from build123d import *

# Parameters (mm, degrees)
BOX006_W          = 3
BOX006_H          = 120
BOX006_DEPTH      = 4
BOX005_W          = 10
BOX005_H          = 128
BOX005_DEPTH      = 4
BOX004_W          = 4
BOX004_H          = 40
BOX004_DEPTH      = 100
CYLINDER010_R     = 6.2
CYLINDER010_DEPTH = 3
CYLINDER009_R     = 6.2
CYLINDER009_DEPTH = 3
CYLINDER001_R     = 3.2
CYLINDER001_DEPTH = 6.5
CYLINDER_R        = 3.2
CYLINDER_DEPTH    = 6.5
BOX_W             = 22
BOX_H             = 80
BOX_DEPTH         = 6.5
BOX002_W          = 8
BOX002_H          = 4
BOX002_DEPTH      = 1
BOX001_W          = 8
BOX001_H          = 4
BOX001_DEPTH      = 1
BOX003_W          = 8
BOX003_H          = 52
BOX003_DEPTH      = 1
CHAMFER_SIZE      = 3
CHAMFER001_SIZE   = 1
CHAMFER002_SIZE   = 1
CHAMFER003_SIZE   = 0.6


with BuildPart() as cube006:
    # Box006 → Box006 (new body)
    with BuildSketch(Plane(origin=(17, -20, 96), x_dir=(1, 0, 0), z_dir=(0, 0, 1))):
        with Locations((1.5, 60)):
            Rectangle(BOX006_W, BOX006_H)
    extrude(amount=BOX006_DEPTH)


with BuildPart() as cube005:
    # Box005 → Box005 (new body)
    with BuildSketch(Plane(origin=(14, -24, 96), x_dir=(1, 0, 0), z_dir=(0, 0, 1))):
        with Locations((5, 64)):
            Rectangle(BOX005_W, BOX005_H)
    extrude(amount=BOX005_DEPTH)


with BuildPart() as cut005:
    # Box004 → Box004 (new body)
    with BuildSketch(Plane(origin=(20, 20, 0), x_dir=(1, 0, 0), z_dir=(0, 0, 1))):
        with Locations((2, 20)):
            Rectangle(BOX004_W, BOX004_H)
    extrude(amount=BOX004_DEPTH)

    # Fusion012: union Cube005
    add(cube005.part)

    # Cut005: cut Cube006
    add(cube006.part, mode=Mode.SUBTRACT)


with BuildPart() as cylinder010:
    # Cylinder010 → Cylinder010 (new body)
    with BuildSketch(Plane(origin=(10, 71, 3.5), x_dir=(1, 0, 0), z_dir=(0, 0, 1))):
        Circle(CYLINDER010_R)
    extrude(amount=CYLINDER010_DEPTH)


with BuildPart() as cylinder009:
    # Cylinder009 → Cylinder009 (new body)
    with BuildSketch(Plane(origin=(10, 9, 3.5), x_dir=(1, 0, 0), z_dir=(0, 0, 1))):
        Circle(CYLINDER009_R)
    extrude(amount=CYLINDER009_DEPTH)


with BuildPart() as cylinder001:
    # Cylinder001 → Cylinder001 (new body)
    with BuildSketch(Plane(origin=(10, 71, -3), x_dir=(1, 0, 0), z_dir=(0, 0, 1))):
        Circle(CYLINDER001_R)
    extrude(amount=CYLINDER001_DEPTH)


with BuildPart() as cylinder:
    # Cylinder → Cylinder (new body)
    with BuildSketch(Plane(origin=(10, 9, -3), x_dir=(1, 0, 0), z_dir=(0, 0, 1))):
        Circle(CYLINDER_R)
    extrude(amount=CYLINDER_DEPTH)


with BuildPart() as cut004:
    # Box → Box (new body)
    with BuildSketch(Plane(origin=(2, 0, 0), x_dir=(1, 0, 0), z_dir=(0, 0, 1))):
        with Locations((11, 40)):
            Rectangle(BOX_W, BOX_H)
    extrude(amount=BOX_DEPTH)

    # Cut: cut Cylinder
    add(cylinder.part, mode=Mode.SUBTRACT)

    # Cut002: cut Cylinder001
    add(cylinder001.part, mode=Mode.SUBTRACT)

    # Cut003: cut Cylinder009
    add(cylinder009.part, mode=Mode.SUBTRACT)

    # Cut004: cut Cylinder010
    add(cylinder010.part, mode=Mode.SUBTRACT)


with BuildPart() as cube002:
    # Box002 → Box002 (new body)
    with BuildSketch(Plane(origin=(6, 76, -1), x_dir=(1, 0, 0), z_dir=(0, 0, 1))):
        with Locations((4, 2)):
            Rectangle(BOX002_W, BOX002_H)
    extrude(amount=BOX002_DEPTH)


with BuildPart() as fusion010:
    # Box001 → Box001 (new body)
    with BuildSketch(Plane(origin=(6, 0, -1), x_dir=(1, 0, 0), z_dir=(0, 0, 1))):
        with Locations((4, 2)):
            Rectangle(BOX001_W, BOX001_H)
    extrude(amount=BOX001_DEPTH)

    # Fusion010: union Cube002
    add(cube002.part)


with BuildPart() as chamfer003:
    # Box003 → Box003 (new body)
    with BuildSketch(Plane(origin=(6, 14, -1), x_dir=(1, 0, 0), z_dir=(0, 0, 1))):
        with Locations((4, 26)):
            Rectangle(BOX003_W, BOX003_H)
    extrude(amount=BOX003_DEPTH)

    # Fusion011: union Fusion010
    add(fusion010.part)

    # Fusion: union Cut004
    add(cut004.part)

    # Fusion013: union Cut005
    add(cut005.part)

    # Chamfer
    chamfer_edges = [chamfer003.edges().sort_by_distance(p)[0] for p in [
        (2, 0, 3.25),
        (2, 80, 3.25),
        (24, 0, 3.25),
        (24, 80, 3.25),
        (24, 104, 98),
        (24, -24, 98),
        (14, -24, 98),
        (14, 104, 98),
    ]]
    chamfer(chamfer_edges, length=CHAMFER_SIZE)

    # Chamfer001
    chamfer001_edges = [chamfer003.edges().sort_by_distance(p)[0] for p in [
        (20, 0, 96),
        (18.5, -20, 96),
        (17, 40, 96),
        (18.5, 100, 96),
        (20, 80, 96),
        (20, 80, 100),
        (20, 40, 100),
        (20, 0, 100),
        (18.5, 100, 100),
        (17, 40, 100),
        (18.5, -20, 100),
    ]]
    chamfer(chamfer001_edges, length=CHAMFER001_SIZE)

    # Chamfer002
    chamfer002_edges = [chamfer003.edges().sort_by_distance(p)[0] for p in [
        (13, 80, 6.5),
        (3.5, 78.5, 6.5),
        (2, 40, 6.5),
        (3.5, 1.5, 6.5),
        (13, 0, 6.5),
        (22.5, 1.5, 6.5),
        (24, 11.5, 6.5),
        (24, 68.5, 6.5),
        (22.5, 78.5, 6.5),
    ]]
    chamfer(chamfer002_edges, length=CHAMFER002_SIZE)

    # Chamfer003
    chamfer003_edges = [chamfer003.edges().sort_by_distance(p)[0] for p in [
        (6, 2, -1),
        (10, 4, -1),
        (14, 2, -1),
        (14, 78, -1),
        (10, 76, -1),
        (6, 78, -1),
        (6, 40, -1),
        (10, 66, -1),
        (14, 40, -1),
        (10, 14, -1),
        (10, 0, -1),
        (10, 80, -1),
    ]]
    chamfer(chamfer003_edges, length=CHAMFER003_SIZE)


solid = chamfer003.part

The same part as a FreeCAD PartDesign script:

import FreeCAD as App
import Part
import Sketcher


def edges_at(feature, points):
    """Names of the edges that pass closest to the given points."""
    edges = feature.Shape.Edges
    near = lambda p: min(range(len(edges)), key=lambda i: edges[i].distToShape(Part.Vertex(*p))[0])
    return sorted({f"Edge{near(p) + 1}" for p in points})

doc = App.newDocument("Part")
body = doc.addObject("PartDesign::Body", "Body")

# Sketch on XY plane
sketch1 = body.newObject("Sketcher::SketchObject", "Sketch")
sketch1.AttachmentSupport = (doc.getObject("XY_Plane"), [""])
sketch1.MapMode = "FlatFace"
sketch1.AttachmentOffset = App.Placement(App.Vector(0, 0, 96), App.Rotation())
sketch1.addGeometry(Part.LineSegment(App.Vector(17, 100, 0), App.Vector(17, -20, 0)), False)
sketch1.addGeometry(Part.LineSegment(App.Vector(17, -20, 0), App.Vector(20, -20, 0)), False)
sketch1.addGeometry(Part.LineSegment(App.Vector(20, -20, 0), App.Vector(20, 100, 0)), False)
sketch1.addGeometry(Part.LineSegment(App.Vector(20, 100, 0), App.Vector(17, 100, 0)), False)
sketch1.addConstraint(Sketcher.Constraint("Coincident", 0, 2, 1, 1))
sketch1.addConstraint(Sketcher.Constraint("Coincident", 1, 2, 2, 1))
sketch1.addConstraint(Sketcher.Constraint("Coincident", 2, 2, 3, 1))
sketch1.addConstraint(Sketcher.Constraint("Coincident", 3, 2, 0, 1))
sketch1.addConstraint(Sketcher.Constraint("Vertical", 0))
sketch1.addConstraint(Sketcher.Constraint("Horizontal", 1))
sketch1.addConstraint(Sketcher.Constraint("Vertical", 2))
sketch1.addConstraint(Sketcher.Constraint("Horizontal", 3))
sketch1.addConstraint(Sketcher.Constraint("DistanceX", 1, 1, 1, 2, 3.0))
sketch1.addConstraint(Sketcher.Constraint("DistanceY", 0, 2, 0, 1, 120.0))
sketch1.addConstraint(Sketcher.Constraint("DistanceX", -1, 1, 0, 2, 17.0))
sketch1.addConstraint(Sketcher.Constraint("DistanceY", 0, 2, -1, 1, 20.0))
pad1 = body.newObject("PartDesign::Pad", "Pad")
pad1.Profile = sketch1
pad1.Length = 4
body2 = doc.addObject("PartDesign::Body", "Body001")

# Sketch on XY plane
sketch2 = body2.newObject("Sketcher::SketchObject", "Sketch001")
sketch2.AttachmentSupport = (doc.getObject("XY_Plane001"), [""])
sketch2.MapMode = "FlatFace"
sketch2.AttachmentOffset = App.Placement(App.Vector(0, 0, 96), App.Rotation())
sketch2.addGeometry(Part.LineSegment(App.Vector(14, 104, 0), App.Vector(14, -24, 0)), False)
sketch2.addGeometry(Part.LineSegment(App.Vector(14, -24, 0), App.Vector(24, -24, 0)), False)
sketch2.addGeometry(Part.LineSegment(App.Vector(24, -24, 0), App.Vector(24, 104, 0)), False)
sketch2.addGeometry(Part.LineSegment(App.Vector(24, 104, 0), App.Vector(14, 104, 0)), False)
sketch2.addConstraint(Sketcher.Constraint("Coincident", 0, 2, 1, 1))
sketch2.addConstraint(Sketcher.Constraint("Coincident", 1, 2, 2, 1))
sketch2.addConstraint(Sketcher.Constraint("Coincident", 2, 2, 3, 1))
sketch2.addConstraint(Sketcher.Constraint("Coincident", 3, 2, 0, 1))
sketch2.addConstraint(Sketcher.Constraint("Vertical", 0))
sketch2.addConstraint(Sketcher.Constraint("Horizontal", 1))
sketch2.addConstraint(Sketcher.Constraint("Vertical", 2))
sketch2.addConstraint(Sketcher.Constraint("Horizontal", 3))
sketch2.addConstraint(Sketcher.Constraint("DistanceX", 1, 1, 1, 2, 10.0))
sketch2.addConstraint(Sketcher.Constraint("DistanceY", 0, 2, 0, 1, 128.0))
sketch2.addConstraint(Sketcher.Constraint("DistanceX", -1, 1, 0, 2, 14.0))
sketch2.addConstraint(Sketcher.Constraint("DistanceY", 0, 2, -1, 1, 24.0))
pad2 = body2.newObject("PartDesign::Pad", "Pad001")
pad2.Profile = sketch2
pad2.Length = 4
body3 = doc.addObject("PartDesign::Body", "Body002")

# Sketch on XY plane
sketch3 = body3.newObject("Sketcher::SketchObject", "Sketch002")
sketch3.AttachmentSupport = (doc.getObject("XY_Plane002"), [""])
sketch3.MapMode = "FlatFace"
sketch3.addGeometry(Part.LineSegment(App.Vector(20, 60, 0), App.Vector(20, 20, 0)), False)
sketch3.addGeometry(Part.LineSegment(App.Vector(20, 20, 0), App.Vector(24, 20, 0)), False)
sketch3.addGeometry(Part.LineSegment(App.Vector(24, 20, 0), App.Vector(24, 60, 0)), False)
sketch3.addGeometry(Part.LineSegment(App.Vector(24, 60, 0), App.Vector(20, 60, 0)), False)
sketch3.addConstraint(Sketcher.Constraint("Coincident", 0, 2, 1, 1))
sketch3.addConstraint(Sketcher.Constraint("Coincident", 1, 2, 2, 1))
sketch3.addConstraint(Sketcher.Constraint("Coincident", 2, 2, 3, 1))
sketch3.addConstraint(Sketcher.Constraint("Coincident", 3, 2, 0, 1))
sketch3.addConstraint(Sketcher.Constraint("Vertical", 0))
sketch3.addConstraint(Sketcher.Constraint("Horizontal", 1))
sketch3.addConstraint(Sketcher.Constraint("Vertical", 2))
sketch3.addConstraint(Sketcher.Constraint("Horizontal", 3))
sketch3.addConstraint(Sketcher.Constraint("DistanceX", 1, 1, 1, 2, 4.0))
sketch3.addConstraint(Sketcher.Constraint("DistanceY", 0, 2, 0, 1, 40.0))
sketch3.addConstraint(Sketcher.Constraint("DistanceX", -1, 1, 0, 2, 20.0))
sketch3.addConstraint(Sketcher.Constraint("DistanceY", -1, 1, 0, 2, 20.0))
pad3 = body3.newObject("PartDesign::Pad", "Pad002")
pad3.Profile = sketch3
pad3.Length = 100
doc.recompute()

boolean = body3.newObject("PartDesign::Boolean", "Boolean")
boolean.Type = "Fuse"
boolean.addObjects([body2])
doc.recompute()

boolean2 = body3.newObject("PartDesign::Boolean", "Boolean001")
boolean2.Type = "Cut"
boolean2.addObjects([body])
body4 = doc.addObject("PartDesign::Body", "Body003")

# Sketch on XY plane
sketch4 = body4.newObject("Sketcher::SketchObject", "Sketch003")
sketch4.AttachmentSupport = (doc.getObject("XY_Plane003"), [""])
sketch4.MapMode = "FlatFace"
sketch4.AttachmentOffset = App.Placement(App.Vector(0, 0, 3.5), App.Rotation())
sketch4.addGeometry(Part.Circle(App.Vector(10, 71, 0), App.Vector(0, 0, 1), 6.2), False)
sketch4.addConstraint(Sketcher.Constraint("Diameter", 0, 12.4))
sketch4.addConstraint(Sketcher.Constraint("DistanceX", -1, 1, 0, 3, 10.0))
sketch4.addConstraint(Sketcher.Constraint("DistanceY", -1, 1, 0, 3, 71.0))
pad4 = body4.newObject("PartDesign::Pad", "Pad003")
pad4.Profile = sketch4
pad4.Length = 3
body5 = doc.addObject("PartDesign::Body", "Body004")

# Sketch on XY plane
sketch5 = body5.newObject("Sketcher::SketchObject", "Sketch004")
sketch5.AttachmentSupport = (doc.getObject("XY_Plane004"), [""])
sketch5.MapMode = "FlatFace"
sketch5.AttachmentOffset = App.Placement(App.Vector(0, 0, 3.5), App.Rotation())
sketch5.addGeometry(Part.Circle(App.Vector(10, 9, 0), App.Vector(0, 0, 1), 6.2), False)
sketch5.addConstraint(Sketcher.Constraint("Diameter", 0, 12.4))
sketch5.addConstraint(Sketcher.Constraint("DistanceX", -1, 1, 0, 3, 10.0))
sketch5.addConstraint(Sketcher.Constraint("DistanceY", -1, 1, 0, 3, 9.0))
pad5 = body5.newObject("PartDesign::Pad", "Pad004")
pad5.Profile = sketch5
pad5.Length = 3
body6 = doc.addObject("PartDesign::Body", "Body005")

# Sketch on XY plane
sketch6 = body6.newObject("Sketcher::SketchObject", "Sketch005")
sketch6.AttachmentSupport = (doc.getObject("XY_Plane005"), [""])
sketch6.MapMode = "FlatFace"
sketch6.AttachmentOffset = App.Placement(App.Vector(0, 0, -3), App.Rotation())
sketch6.addGeometry(Part.Circle(App.Vector(10, 71, 0), App.Vector(0, 0, 1), 3.2), False)
sketch6.addConstraint(Sketcher.Constraint("Diameter", 0, 6.4))
sketch6.addConstraint(Sketcher.Constraint("DistanceX", -1, 1, 0, 3, 10.0))
sketch6.addConstraint(Sketcher.Constraint("DistanceY", -1, 1, 0, 3, 71.0))
pad6 = body6.newObject("PartDesign::Pad", "Pad005")
pad6.Profile = sketch6
pad6.Length = 6.5
body7 = doc.addObject("PartDesign::Body", "Body006")

# Sketch on XY plane
sketch7 = body7.newObject("Sketcher::SketchObject", "Sketch006")
sketch7.AttachmentSupport = (doc.getObject("XY_Plane006"), [""])
sketch7.MapMode = "FlatFace"
sketch7.AttachmentOffset = App.Placement(App.Vector(0, 0, -3), App.Rotation())
sketch7.addGeometry(Part.Circle(App.Vector(10, 9, 0), App.Vector(0, 0, 1), 3.2), False)
sketch7.addConstraint(Sketcher.Constraint("Diameter", 0, 6.4))
sketch7.addConstraint(Sketcher.Constraint("DistanceX", -1, 1, 0, 3, 10.0))
sketch7.addConstraint(Sketcher.Constraint("DistanceY", -1, 1, 0, 3, 9.0))
pad7 = body7.newObject("PartDesign::Pad", "Pad006")
pad7.Profile = sketch7
pad7.Length = 6.5
body8 = doc.addObject("PartDesign::Body", "Body007")

# Sketch on XY plane
sketch8 = body8.newObject("Sketcher::SketchObject", "Sketch007")
sketch8.AttachmentSupport = (doc.getObject("XY_Plane007"), [""])
sketch8.MapMode = "FlatFace"
sketch8.addGeometry(Part.LineSegment(App.Vector(2, 80, 0), App.Vector(2, 0, 0)), False)
sketch8.addGeometry(Part.LineSegment(App.Vector(2, 0, 0), App.Vector(24, 0, 0)), False)
sketch8.addGeometry(Part.LineSegment(App.Vector(24, 0, 0), App.Vector(24, 80, 0)), False)
sketch8.addGeometry(Part.LineSegment(App.Vector(24, 80, 0), App.Vector(2, 80, 0)), False)
sketch8.addConstraint(Sketcher.Constraint("Coincident", 0, 2, 1, 1))
sketch8.addConstraint(Sketcher.Constraint("Coincident", 1, 2, 2, 1))
sketch8.addConstraint(Sketcher.Constraint("Coincident", 2, 2, 3, 1))
sketch8.addConstraint(Sketcher.Constraint("Coincident", 3, 2, 0, 1))
sketch8.addConstraint(Sketcher.Constraint("Vertical", 0))
sketch8.addConstraint(Sketcher.Constraint("Horizontal", 1))
sketch8.addConstraint(Sketcher.Constraint("Vertical", 2))
sketch8.addConstraint(Sketcher.Constraint("Horizontal", 3))
sketch8.addConstraint(Sketcher.Constraint("PointOnObject", 0, 2, -1))
sketch8.addConstraint(Sketcher.Constraint("DistanceX", 1, 1, 1, 2, 22.0))
sketch8.addConstraint(Sketcher.Constraint("DistanceY", 0, 2, 0, 1, 80.0))
sketch8.addConstraint(Sketcher.Constraint("DistanceX", -1, 1, 0, 2, 2.0))
pad8 = body8.newObject("PartDesign::Pad", "Pad007")
pad8.Profile = sketch8
pad8.Length = 6.5
doc.recompute()

boolean3 = body8.newObject("PartDesign::Boolean", "Boolean002")
boolean3.Type = "Cut"
boolean3.addObjects([body7])
doc.recompute()

boolean4 = body8.newObject("PartDesign::Boolean", "Boolean003")
boolean4.Type = "Cut"
boolean4.addObjects([body6])
doc.recompute()

boolean5 = body8.newObject("PartDesign::Boolean", "Boolean004")
boolean5.Type = "Cut"
boolean5.addObjects([body5])
doc.recompute()

boolean6 = body8.newObject("PartDesign::Boolean", "Boolean005")
boolean6.Type = "Cut"
boolean6.addObjects([body4])
body9 = doc.addObject("PartDesign::Body", "Body008")

# Sketch on XY plane
sketch9 = body9.newObject("Sketcher::SketchObject", "Sketch008")
sketch9.AttachmentSupport = (doc.getObject("XY_Plane008"), [""])
sketch9.MapMode = "FlatFace"
sketch9.AttachmentOffset = App.Placement(App.Vector(0, 0, -1), App.Rotation())
sketch9.addGeometry(Part.LineSegment(App.Vector(6, 80, 0), App.Vector(6, 76, 0)), False)
sketch9.addGeometry(Part.LineSegment(App.Vector(6, 76, 0), App.Vector(14, 76, 0)), False)
sketch9.addGeometry(Part.LineSegment(App.Vector(14, 76, 0), App.Vector(14, 80, 0)), False)
sketch9.addGeometry(Part.LineSegment(App.Vector(14, 80, 0), App.Vector(6, 80, 0)), False)
sketch9.addConstraint(Sketcher.Constraint("Coincident", 0, 2, 1, 1))
sketch9.addConstraint(Sketcher.Constraint("Coincident", 1, 2, 2, 1))
sketch9.addConstraint(Sketcher.Constraint("Coincident", 2, 2, 3, 1))
sketch9.addConstraint(Sketcher.Constraint("Coincident", 3, 2, 0, 1))
sketch9.addConstraint(Sketcher.Constraint("Vertical", 0))
sketch9.addConstraint(Sketcher.Constraint("Horizontal", 1))
sketch9.addConstraint(Sketcher.Constraint("Vertical", 2))
sketch9.addConstraint(Sketcher.Constraint("Horizontal", 3))
sketch9.addConstraint(Sketcher.Constraint("DistanceX", 1, 1, 1, 2, 8.0))
sketch9.addConstraint(Sketcher.Constraint("DistanceY", 0, 2, 0, 1, 4.0))
sketch9.addConstraint(Sketcher.Constraint("DistanceX", -1, 1, 0, 2, 6.0))
sketch9.addConstraint(Sketcher.Constraint("DistanceY", -1, 1, 0, 2, 76.0))
pad9 = body9.newObject("PartDesign::Pad", "Pad008")
pad9.Profile = sketch9
pad9.Length = 1
body10 = doc.addObject("PartDesign::Body", "Body009")
body10.AllowCompound = True

# Sketch on XY plane
sketch10 = body10.newObject("Sketcher::SketchObject", "Sketch009")
sketch10.AttachmentSupport = (doc.getObject("XY_Plane009"), [""])
sketch10.MapMode = "FlatFace"
sketch10.AttachmentOffset = App.Placement(App.Vector(0, 0, -1), App.Rotation())
sketch10.addGeometry(Part.LineSegment(App.Vector(6, 4, 0), App.Vector(6, 0, 0)), False)
sketch10.addGeometry(Part.LineSegment(App.Vector(6, 0, 0), App.Vector(14, 0, 0)), False)
sketch10.addGeometry(Part.LineSegment(App.Vector(14, 0, 0), App.Vector(14, 4, 0)), False)
sketch10.addGeometry(Part.LineSegment(App.Vector(14, 4, 0), App.Vector(6, 4, 0)), False)
sketch10.addConstraint(Sketcher.Constraint("Coincident", 0, 2, 1, 1))
sketch10.addConstraint(Sketcher.Constraint("Coincident", 1, 2, 2, 1))
sketch10.addConstraint(Sketcher.Constraint("Coincident", 2, 2, 3, 1))
sketch10.addConstraint(Sketcher.Constraint("Coincident", 3, 2, 0, 1))
sketch10.addConstraint(Sketcher.Constraint("Vertical", 0))
sketch10.addConstraint(Sketcher.Constraint("Horizontal", 1))
sketch10.addConstraint(Sketcher.Constraint("Vertical", 2))
sketch10.addConstraint(Sketcher.Constraint("Horizontal", 3))
sketch10.addConstraint(Sketcher.Constraint("PointOnObject", 0, 2, -1))
sketch10.addConstraint(Sketcher.Constraint("DistanceX", 1, 1, 1, 2, 8.0))
sketch10.addConstraint(Sketcher.Constraint("DistanceY", 0, 2, 0, 1, 4.0))
sketch10.addConstraint(Sketcher.Constraint("DistanceX", -1, 1, 0, 2, 6.0))
pad10 = body10.newObject("PartDesign::Pad", "Pad009")
pad10.Profile = sketch10
pad10.Length = 1
doc.recompute()

boolean7 = body10.newObject("PartDesign::Boolean", "Boolean006")
boolean7.Type = "Fuse"
boolean7.addObjects([body9])
body11 = doc.addObject("PartDesign::Body", "Body010")
body11.AllowCompound = True

# Sketch on XY plane
sketch11 = body11.newObject("Sketcher::SketchObject", "Sketch010")
sketch11.AttachmentSupport = (doc.getObject("XY_Plane010"), [""])
sketch11.MapMode = "FlatFace"
sketch11.AttachmentOffset = App.Placement(App.Vector(0, 0, -1), App.Rotation())
sketch11.addGeometry(Part.LineSegment(App.Vector(6, 66, 0), App.Vector(6, 14, 0)), False)
sketch11.addGeometry(Part.LineSegment(App.Vector(6, 14, 0), App.Vector(14, 14, 0)), False)
sketch11.addGeometry(Part.LineSegment(App.Vector(14, 14, 0), App.Vector(14, 66, 0)), False)
sketch11.addGeometry(Part.LineSegment(App.Vector(14, 66, 0), App.Vector(6, 66, 0)), False)
sketch11.addConstraint(Sketcher.Constraint("Coincident", 0, 2, 1, 1))
sketch11.addConstraint(Sketcher.Constraint("Coincident", 1, 2, 2, 1))
sketch11.addConstraint(Sketcher.Constraint("Coincident", 2, 2, 3, 1))
sketch11.addConstraint(Sketcher.Constraint("Coincident", 3, 2, 0, 1))
sketch11.addConstraint(Sketcher.Constraint("Vertical", 0))
sketch11.addConstraint(Sketcher.Constraint("Horizontal", 1))
sketch11.addConstraint(Sketcher.Constraint("Vertical", 2))
sketch11.addConstraint(Sketcher.Constraint("Horizontal", 3))
sketch11.addConstraint(Sketcher.Constraint("DistanceX", 1, 1, 1, 2, 8.0))
sketch11.addConstraint(Sketcher.Constraint("DistanceY", 0, 2, 0, 1, 52.0))
sketch11.addConstraint(Sketcher.Constraint("DistanceX", -1, 1, 0, 2, 6.0))
sketch11.addConstraint(Sketcher.Constraint("DistanceY", -1, 1, 0, 2, 14.0))
pad11 = body11.newObject("PartDesign::Pad", "Pad010")
pad11.Profile = sketch11
pad11.Length = 1
doc.recompute()

boolean8 = body11.newObject("PartDesign::Boolean", "Boolean007")
boolean8.Type = "Fuse"
boolean8.addObjects([body10])
doc.recompute()

boolean9 = body11.newObject("PartDesign::Boolean", "Boolean008")
boolean9.Type = "Fuse"
boolean9.addObjects([body8])
doc.recompute()

boolean10 = body11.newObject("PartDesign::Boolean", "Boolean009")
boolean10.Type = "Fuse"
boolean10.addObjects([body3])
doc.recompute()

chamfer = body11.newObject("PartDesign::Chamfer", "Chamfer")
chamfer.Base = (boolean10, edges_at(boolean10, [
    (2, 0, 3.25),
    (2, 80, 3.25),
    (24, 0, 3.25),
    (24, 80, 3.25),
    (24, 104, 98),
    (24, -24, 98),
    (14, -24, 98),
    (14, 104, 98),
]))
chamfer.Size = 3
doc.recompute()

chamfer2 = body11.newObject("PartDesign::Chamfer", "Chamfer001")
chamfer2.Base = (chamfer, edges_at(chamfer, [
    (20, 0, 96),
    (18.5, -20, 96),
    (17, 40, 96),
    (18.5, 100, 96),
    (20, 80, 96),
    (20, 40, 100),
    (20, 40, 100),
    (20, 40, 100),
    (18.5, 100, 100),
    (17, 40, 100),
    (18.5, -20, 100),
]))
chamfer2.Size = 1
doc.recompute()

chamfer3 = body11.newObject("PartDesign::Chamfer", "Chamfer002")
chamfer3.Base = (chamfer2, edges_at(chamfer2, [
    (13, 80, 6.5),
    (3.5, 78.5, 6.5),
    (2, 40, 6.5),
    (3.5, 1.5, 6.5),
    (13, 0, 6.5),
    (22.5, 1.5, 6.5),
    (24, 11.5, 6.5),
    (24, 68.5, 6.5),
    (22.5, 78.5, 6.5),
]))
chamfer3.Size = 1
doc.recompute()

chamfer4 = body11.newObject("PartDesign::Chamfer", "Chamfer003")
chamfer4.Base = (chamfer3, edges_at(chamfer3, [
    (6, 2, -1),
    (10, 4, -1),
    (14, 2, -1),
    (14, 78, -1),
    (10, 76, -1),
    (6, 78, -1),
    (6, 40, -1),
    (10, 66, -1),
    (14, 40, -1),
    (10, 14, -1),
    (10, 0, -1),
    (10, 80, -1),
]))
chamfer4.Size = 0.6

doc.recompute()
